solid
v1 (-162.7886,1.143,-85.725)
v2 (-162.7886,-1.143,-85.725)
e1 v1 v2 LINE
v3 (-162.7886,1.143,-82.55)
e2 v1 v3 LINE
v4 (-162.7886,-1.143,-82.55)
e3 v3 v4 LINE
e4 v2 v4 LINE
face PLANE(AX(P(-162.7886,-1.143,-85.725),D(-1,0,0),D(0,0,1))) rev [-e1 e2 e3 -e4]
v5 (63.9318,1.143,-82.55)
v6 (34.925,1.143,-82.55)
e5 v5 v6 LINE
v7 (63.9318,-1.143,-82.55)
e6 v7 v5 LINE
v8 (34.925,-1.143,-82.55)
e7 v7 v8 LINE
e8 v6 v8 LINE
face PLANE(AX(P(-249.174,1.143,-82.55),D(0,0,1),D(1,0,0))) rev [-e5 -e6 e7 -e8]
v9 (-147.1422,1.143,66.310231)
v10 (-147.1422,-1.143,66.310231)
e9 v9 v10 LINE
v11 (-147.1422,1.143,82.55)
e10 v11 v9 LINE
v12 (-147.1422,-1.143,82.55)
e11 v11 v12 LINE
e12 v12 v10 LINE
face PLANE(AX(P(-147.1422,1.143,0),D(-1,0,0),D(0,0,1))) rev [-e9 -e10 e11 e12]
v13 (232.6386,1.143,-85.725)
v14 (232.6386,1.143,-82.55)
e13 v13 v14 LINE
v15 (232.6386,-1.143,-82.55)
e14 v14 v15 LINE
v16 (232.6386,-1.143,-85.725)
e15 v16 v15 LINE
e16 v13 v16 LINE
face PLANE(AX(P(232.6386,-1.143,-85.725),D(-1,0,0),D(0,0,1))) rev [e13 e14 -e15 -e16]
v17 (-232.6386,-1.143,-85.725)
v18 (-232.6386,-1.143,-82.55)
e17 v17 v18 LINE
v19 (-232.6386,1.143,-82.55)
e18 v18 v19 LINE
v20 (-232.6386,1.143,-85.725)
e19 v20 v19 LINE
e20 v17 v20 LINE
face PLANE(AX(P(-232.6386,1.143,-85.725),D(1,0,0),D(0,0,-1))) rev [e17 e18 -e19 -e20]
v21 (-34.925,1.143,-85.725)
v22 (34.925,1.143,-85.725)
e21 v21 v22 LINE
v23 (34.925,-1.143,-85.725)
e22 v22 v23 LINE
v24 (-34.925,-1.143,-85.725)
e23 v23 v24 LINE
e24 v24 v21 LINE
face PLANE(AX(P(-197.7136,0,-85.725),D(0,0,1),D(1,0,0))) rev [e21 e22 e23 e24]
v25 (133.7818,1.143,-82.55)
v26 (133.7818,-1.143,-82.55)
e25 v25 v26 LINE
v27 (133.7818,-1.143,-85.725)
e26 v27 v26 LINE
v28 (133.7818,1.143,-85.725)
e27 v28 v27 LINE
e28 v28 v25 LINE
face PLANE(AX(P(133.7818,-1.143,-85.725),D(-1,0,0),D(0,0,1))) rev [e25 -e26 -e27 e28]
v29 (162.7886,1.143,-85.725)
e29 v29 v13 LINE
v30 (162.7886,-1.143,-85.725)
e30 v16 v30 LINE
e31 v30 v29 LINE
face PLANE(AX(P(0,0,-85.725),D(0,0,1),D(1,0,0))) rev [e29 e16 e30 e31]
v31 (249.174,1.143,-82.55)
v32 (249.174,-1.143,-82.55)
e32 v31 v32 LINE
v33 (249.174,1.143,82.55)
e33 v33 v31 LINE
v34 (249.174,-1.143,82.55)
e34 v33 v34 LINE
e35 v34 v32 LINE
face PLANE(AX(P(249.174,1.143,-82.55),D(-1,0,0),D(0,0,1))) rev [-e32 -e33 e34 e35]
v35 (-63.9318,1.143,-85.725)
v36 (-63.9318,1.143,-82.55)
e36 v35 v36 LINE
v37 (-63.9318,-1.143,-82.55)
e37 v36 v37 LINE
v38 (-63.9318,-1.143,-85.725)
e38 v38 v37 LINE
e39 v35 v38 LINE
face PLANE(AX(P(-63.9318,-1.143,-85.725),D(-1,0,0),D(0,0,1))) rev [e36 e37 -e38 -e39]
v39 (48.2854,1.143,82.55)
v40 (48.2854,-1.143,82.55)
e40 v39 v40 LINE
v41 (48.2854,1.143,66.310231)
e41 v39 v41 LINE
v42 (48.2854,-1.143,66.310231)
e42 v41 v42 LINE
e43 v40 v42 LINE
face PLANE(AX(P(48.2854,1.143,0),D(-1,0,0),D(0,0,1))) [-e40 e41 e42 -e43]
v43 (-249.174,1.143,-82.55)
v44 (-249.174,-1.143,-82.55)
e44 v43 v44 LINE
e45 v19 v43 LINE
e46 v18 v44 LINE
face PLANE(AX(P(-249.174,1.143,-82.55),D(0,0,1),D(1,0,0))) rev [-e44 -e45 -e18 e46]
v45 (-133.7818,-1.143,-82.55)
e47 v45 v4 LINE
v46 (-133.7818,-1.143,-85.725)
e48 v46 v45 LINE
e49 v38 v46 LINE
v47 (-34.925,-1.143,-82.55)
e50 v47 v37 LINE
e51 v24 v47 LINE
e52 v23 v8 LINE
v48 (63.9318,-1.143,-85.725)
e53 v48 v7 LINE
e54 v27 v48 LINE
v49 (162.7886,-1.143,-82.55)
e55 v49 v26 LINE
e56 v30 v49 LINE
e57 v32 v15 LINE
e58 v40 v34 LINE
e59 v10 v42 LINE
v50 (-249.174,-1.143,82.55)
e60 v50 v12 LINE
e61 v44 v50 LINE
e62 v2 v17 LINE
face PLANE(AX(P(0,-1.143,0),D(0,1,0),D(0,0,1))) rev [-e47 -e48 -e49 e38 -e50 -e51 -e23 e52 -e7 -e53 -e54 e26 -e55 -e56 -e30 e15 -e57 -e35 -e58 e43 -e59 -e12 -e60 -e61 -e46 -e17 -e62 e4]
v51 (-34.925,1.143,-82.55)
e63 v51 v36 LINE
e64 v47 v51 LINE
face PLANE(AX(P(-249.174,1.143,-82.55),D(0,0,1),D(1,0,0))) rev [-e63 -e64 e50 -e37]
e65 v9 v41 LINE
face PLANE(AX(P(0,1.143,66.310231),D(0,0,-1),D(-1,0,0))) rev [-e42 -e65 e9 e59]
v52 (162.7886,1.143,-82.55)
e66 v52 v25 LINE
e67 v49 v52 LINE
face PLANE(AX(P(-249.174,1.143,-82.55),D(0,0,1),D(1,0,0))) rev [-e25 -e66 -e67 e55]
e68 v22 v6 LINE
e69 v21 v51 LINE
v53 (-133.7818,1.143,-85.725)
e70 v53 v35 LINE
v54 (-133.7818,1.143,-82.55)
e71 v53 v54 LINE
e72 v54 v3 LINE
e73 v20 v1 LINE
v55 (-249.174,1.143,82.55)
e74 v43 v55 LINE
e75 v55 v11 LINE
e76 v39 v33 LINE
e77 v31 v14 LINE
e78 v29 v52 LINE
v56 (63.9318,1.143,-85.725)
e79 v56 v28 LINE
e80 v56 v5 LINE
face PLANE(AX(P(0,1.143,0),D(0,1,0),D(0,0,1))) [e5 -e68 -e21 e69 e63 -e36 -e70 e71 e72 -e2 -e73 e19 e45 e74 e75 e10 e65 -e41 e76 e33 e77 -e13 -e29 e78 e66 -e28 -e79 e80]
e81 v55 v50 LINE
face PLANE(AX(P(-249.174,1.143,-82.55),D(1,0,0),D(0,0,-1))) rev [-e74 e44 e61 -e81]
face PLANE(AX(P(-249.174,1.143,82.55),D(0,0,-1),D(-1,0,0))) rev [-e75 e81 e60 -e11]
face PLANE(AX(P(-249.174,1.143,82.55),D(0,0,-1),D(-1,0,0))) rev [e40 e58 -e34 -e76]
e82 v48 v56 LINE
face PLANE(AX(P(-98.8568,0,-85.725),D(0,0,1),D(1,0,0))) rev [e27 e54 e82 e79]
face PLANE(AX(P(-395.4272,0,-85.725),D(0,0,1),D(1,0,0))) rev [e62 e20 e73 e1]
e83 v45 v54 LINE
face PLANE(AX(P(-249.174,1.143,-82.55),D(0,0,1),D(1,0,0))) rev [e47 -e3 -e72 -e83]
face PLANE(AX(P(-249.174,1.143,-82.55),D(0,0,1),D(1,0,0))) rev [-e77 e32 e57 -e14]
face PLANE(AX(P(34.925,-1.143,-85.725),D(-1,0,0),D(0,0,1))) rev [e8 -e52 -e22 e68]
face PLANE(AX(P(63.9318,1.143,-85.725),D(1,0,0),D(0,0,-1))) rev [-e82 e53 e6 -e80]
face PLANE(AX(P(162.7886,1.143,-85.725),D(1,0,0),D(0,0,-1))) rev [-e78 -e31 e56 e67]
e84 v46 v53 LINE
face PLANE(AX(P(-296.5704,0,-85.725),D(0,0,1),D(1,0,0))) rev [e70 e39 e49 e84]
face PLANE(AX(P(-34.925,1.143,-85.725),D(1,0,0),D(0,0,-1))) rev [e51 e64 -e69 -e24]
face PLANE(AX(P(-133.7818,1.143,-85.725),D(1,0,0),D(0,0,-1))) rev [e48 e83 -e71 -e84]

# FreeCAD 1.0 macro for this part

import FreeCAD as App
import Part
import Sketcher
from FreeCAD import Vector
Q = App.Units.Quantity

doc = App.newDocument("Part")
body = doc.addObject("PartDesign::Body", "Body")

sketch1 = doc.addObject("Sketcher::SketchObject", "Sketch")
body.addObject(sketch1)
sketch1.AttachmentSupport = (doc.XZ_Plane, [""])
sketch1.MapMode = "FlatFace"
sketch1.addGeometry(Part.LineSegment(Vector(-249, -83, 0), Vector(-249, 83, 0)), False)
sketch1.addGeometry(Part.LineSegment(Vector(-249, 83, 0), Vector(249, 83, 0)), False)
sketch1.addGeometry(Part.LineSegment(Vector(249, 83, 0), Vector(249, -83, 0)), False)
sketch1.addGeometry(Part.LineSegment(Vector(249, -83, 0), Vector(-249, -83, 0)), False)
sketch1.addConstraint(Sketcher.Constraint("Coincident", 0, 2, 1, 1))
sketch1.addConstraint(Sketcher.Constraint("Coincident", 1, 2, 2, 1))
sketch1.addConstraint(Sketcher.Constraint("Coincident", 2, 2, 3, 1))
sketch1.addConstraint(Sketcher.Constraint("Coincident", 3, 2, 0, 1))
sketch1.addConstraint(Sketcher.Constraint("Vertical", 0))
sketch1.addConstraint(Sketcher.Constraint("Horizontal", 1))
sketch1.addConstraint(Sketcher.Constraint("Vertical", 2))
sketch1.addConstraint(Sketcher.Constraint("Horizontal", 3))
sketch1.addConstraint(Sketcher.Constraint("Symmetric", 0, 2, 2, 2, -1, 1))
sketch1.addConstraint(Sketcher.Constraint("DistanceY", 0, 1, 0, 2, Q("6.5 in")))
sketch1.addConstraint(Sketcher.Constraint("DistanceX", 1, 1, 1, 2, Q("19.62 in")))
pad1 = doc.addObject("PartDesign::Pad", "Pad")
body.addObject(pad1)
pad1.Profile = sketch1
pad1.Length = Q("0.09 in")
pad1.Midplane = True

sketch2 = doc.addObject("Sketcher::SketchObject", "Sketch001")
body.addObject(sketch2)
sketch2.AttachmentSupport = (doc.XY_Plane, [""])
sketch2.MapMode = "FlatFace"
sketch2.AttachmentOffset = App.Placement(Vector(0, 0, -3.25 * 25.4), App.Rotation())
sketch2.addGeometry(Part.LineSegment(Vector(232.6, 1.1, 0), Vector(232.6, -1.1, 0)), False)
sketch2.addGeometry(Part.LineSegment(Vector(232.6, -1.1, 0), Vector(162.8, -1.1, 0)), False)
sketch2.addGeometry(Part.LineSegment(Vector(162.8, -1.1, 0), Vector(162.8, 1.1, 0)), False)
sketch2.addGeometry(Part.LineSegment(Vector(162.8, 1.1, 0), Vector(232.6, 1.1, 0)), False)
sketch2.addConstraint(Sketcher.Constraint("Coincident", 0, 2, 1, 1))
sketch2.addConstraint(Sketcher.Constraint("Coincident", 1, 2, 2, 1))
sketch2.addConstraint(Sketcher.Constraint("Coincident", 2, 2, 3, 1))
sketch2.addConstraint(Sketcher.Constraint("Coincident", 3, 2, 0, 1))
sketch2.addConstraint(Sketcher.Constraint("Vertical", 0))
sketch2.addConstraint(Sketcher.Constraint("Horizontal", 1))
sketch2.addConstraint(Sketcher.Constraint("Vertical", 2))
sketch2.addConstraint(Sketcher.Constraint("Horizontal", 3))
sketch2.addConstraint(Sketcher.Constraint("DistanceX", 1, 2, 1, 1, Q("2.75 in")))
sketch2.addConstraint(Sketcher.Constraint("DistanceY", 0, 2, 0, 1, Q("0.09 in")))
sketch2.addConstraint(Sketcher.Constraint("DistanceX", -1, 1, 0, 2, Q("9.159 in")))
sketch2.addConstraint(Sketcher.Constraint("DistanceY", 0, 2, -1, 1, Q("0.045 in")))
pad2 = doc.addObject("PartDesign::Pad", "Pad001")
body.addObject(pad2)
pad2.Profile = sketch2
pad2.Length = Q("0.125 in")
pad2.Reversed = True
doc.recompute()

linearpattern = doc.addObject("PartDesign::LinearPattern", "LinearPattern")
body.addObject(linearpattern)
linearpattern.Originals = [pad2]
linearpattern.Direction = (doc.X_Axis, [""])
linearpattern.Mode = "offset"
linearpattern.Offset = Q("3.892 in")
linearpattern.Occurrences = 5
linearpattern.Reversed = True
body.Tip = linearpattern

sketch3 = doc.addObject("Sketcher::SketchObject", "Sketch002")
body.addObject(sketch3)
sketch3.AttachmentSupport = (doc.XZ_Plane, [""])
sketch3.MapMode = "FlatFace"
sketch3.AttachmentOffset = App.Placement(Vector(0, 0, 0.045 * 25.4), App.Rotation())
sketch3.addGeometry(Part.LineSegment(Vector(-147, 83, 0), Vector(-147, 66, 0)), False)
sketch3.addGeometry(Part.LineSegment(Vector(-147, 66, 0), Vector(48, 66, 0)), False)
sketch3.addGeometry(Part.LineSegment(Vector(48, 66, 0), Vector(48, 83, 0)), False)
sketch3.addGeometry(Part.LineSegment(Vector(48, 83, 0), Vector(-147, 83, 0)), False)
sketch3.addConstraint(Sketcher.Constraint("Coincident", 0, 2, 1, 1))
sketch3.addConstraint(Sketcher.Constraint("Coincident", 1, 2, 2, 1))
sketch3.addConstraint(Sketcher.Constraint("Coincident", 2, 2, 3, 1))
sketch3.addConstraint(Sketcher.Constraint("Coincident", 3, 2, 0, 1))
sketch3.addConstraint(Sketcher.Constraint("Vertical", 0))
sketch3.addConstraint(Sketcher.Constraint("Horizontal", 1))
sketch3.addConstraint(Sketcher.Constraint("Vertical", 2))
sketch3.addConstraint(Sketcher.Constraint("Horizontal", 3))
sketch3.addConstraint(Sketcher.Constraint("DistanceX", 1, 1, 1, 2, Q("7.694 in")))
sketch3.addConstraint(Sketcher.Constraint("DistanceY", -1, 1, 2, 2, Q("3.25 in")))
sketch3.addConstraint(Sketcher.Constraint("DistanceX", 0, 2, -1, 1, Q("5.793 in")))
sketch3.addConstraint(Sketcher.Constraint("DistanceY", 0, 2, 0, 1, Q("16.239769 mm")))
pocket1 = doc.addObject("PartDesign::Pocket", "Pocket")
body.addObject(pocket1)
pocket1.Profile = sketch3
pocket1.Type = "ThroughAll"

doc.recompute()
